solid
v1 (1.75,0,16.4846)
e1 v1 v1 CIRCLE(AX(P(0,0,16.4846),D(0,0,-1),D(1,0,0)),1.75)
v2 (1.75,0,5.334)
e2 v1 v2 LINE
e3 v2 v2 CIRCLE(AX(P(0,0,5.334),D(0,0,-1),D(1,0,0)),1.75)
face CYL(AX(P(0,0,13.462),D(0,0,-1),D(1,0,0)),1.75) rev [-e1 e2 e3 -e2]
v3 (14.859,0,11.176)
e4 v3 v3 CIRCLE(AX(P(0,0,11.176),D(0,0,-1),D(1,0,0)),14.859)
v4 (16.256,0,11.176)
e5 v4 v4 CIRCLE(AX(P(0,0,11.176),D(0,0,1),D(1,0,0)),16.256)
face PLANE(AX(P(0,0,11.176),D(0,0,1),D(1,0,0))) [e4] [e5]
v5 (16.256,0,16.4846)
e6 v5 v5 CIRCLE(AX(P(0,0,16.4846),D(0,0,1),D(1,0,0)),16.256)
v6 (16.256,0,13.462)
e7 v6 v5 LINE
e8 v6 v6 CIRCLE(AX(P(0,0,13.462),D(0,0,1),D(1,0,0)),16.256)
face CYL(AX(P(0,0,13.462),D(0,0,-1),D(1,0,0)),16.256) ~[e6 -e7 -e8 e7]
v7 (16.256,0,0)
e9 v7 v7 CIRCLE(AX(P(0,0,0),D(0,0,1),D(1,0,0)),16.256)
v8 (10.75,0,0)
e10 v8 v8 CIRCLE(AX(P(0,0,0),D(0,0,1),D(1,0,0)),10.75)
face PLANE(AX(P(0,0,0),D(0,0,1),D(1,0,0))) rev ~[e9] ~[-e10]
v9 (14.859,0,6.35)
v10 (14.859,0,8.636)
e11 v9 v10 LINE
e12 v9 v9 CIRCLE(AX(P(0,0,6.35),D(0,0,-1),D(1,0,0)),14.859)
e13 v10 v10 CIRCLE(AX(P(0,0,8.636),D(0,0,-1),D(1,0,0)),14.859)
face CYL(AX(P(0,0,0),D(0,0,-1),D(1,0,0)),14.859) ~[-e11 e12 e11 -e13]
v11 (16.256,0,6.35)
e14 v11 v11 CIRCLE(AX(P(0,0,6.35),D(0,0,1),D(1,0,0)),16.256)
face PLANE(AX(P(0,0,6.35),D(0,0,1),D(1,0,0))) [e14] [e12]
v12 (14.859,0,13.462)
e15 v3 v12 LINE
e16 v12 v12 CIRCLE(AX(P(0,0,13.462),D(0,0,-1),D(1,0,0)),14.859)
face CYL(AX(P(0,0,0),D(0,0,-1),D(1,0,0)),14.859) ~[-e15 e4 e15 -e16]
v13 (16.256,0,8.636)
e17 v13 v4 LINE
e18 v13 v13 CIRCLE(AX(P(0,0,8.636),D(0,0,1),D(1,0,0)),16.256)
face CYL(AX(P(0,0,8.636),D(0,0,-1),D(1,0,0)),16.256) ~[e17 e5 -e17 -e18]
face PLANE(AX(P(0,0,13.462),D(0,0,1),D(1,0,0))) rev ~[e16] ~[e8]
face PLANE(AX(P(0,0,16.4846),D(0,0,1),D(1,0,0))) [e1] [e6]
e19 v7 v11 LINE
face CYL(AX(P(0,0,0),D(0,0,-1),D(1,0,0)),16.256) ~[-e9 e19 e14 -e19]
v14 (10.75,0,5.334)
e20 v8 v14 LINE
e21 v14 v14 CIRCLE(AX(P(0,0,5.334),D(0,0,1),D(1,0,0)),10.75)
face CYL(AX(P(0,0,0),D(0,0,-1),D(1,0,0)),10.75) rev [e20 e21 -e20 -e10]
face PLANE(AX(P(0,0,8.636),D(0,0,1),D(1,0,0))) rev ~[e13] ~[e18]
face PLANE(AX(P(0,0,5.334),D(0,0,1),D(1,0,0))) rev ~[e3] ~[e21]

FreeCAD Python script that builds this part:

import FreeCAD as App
import Part
import Sketcher
from FreeCAD import Vector
Q = App.Units.Quantity

doc = App.newDocument("Part")
body = doc.addObject("PartDesign::Body", "Body")

# Sketch on XY plane
sketch1 = body.newObject("Sketcher::SketchObject", "Sketch")
sketch1.AttachmentSupport = (doc.getObject("XY_Plane"), [""])
sketch1.MapMode = "FlatFace"
sketch1.addGeometry(Part.Circle(Vector(0, 0, 0), Vector(0, 0, 1), 16), False)
sketch1.addConstraint([
    Sketcher.Constraint("Coincident", 0, 3, -1, 1),
    Sketcher.Constraint("Diameter", 0, Q("1.28 in")),
])
pad1 = body.newObject("PartDesign::Pad", "Pad")
pad1.Profile = sketch1
pad1.Length = Q("0.25 in")

# Sketch on XY plane
sketch2 = body.newObject("Sketcher::SketchObject", "Sketch001")
sketch2.AttachmentSupport = (doc.getObject("XY_Plane"), [""])
sketch2.MapMode = "FlatFace"
sketch2.addGeometry(Part.Circle(Vector(0, 0, 0), Vector(0, 0, 1), 15), False)
sketch2.addConstraint([
    Sketcher.Constraint("Coincident", 0, 3, -1, 1),
    Sketcher.Constraint("Diameter", 0, Q("1.17 in")),
])
pad2 = body.newObject("PartDesign::Pad", "Pad001")
pad2.Profile = sketch2
pad2.Length = Q("0.63 in")

# Sketch on XY plane
sketch3 = body.newObject("Sketcher::SketchObject", "Sketch002")
sketch3.AttachmentSupport = (doc.getObject("XY_Plane"), [""])
sketch3.MapMode = "FlatFace"
sketch3.AttachmentOffset = App.Placement(Vector(0, 0, 0.34 * 25.4), App.Rotation())
sketch3.addGeometry(Part.Circle(Vector(0, 0, 0), Vector(0, 0, 1), 16), False)
sketch3.addConstraint([
    Sketcher.Constraint("Coincident", 0, 3, -1, 1),
    Sketcher.Constraint("Diameter", 0, Q("1.28 in")),
])
pad3 = body.newObject("PartDesign::Pad", "Pad002")
pad3.Profile = sketch3
pad3.Length = Q("0.1 in")

# Sketch on XY plane
sketch4 = body.newObject("Sketcher::SketchObject", "Sketch003")
sketch4.AttachmentSupport = (doc.getObject("XY_Plane"), [""])
sketch4.MapMode = "FlatFace"
sketch4.AttachmentOffset = App.Placement(Vector(0, 0, 0.53 * 25.4), App.Rotation())
sketch4.addGeometry(Part.Circle(Vector(0, 0, 0), Vector(0, 0, 1), 16), False)
sketch4.addConstraint([
    Sketcher.Constraint("Coincident", 0, 3, -1, 1),
    Sketcher.Constraint("Diameter", 0, Q("1.28 in")),
])
pad4 = body.newObject("PartDesign::Pad", "Pad003")
pad4.Profile = sketch4
pad4.Length = Q("0.119 in")

# Sketch on XY plane
sketch5 = body.newObject("Sketcher::SketchObject", "Sketch004")
sketch5.AttachmentSupport = (doc.getObject("XY_Plane"), [""])
sketch5.MapMode = "FlatFace"
sketch5.AttachmentOffset = App.Placement(Vector(0, 0, 0.53 * 25.4), App.Rotation())
sketch5.addGeometry(Part.Circle(Vector(0, 0, 0), Vector(0, 0, 1), 1.8), False)
sketch5.addConstraint([
    Sketcher.Constraint("Coincident", 0, 3, -1, 1),
    Sketcher.Constraint("Diameter", 0, 3.5),
])
pocket1 = body.newObject("PartDesign::Pocket", "Pocket")
pocket1.Profile = sketch5
pocket1.Length = Q("1.68 in")
pocket1.Reversed = True

# Sketch on XY plane
sketch6 = body.newObject("Sketcher::SketchObject", "Sketch005")
sketch6.AttachmentSupport = (doc.getObject("XY_Plane"), [""])
sketch6.MapMode = "FlatFace"
sketch6.addGeometry(Part.Circle(Vector(0, 0, 0), Vector(0, 0, 1), 1.8), False)
sketch6.addConstraint([
    Sketcher.Constraint("Coincident", 0, 3, -1, 1),
    Sketcher.Constraint("Diameter", 0, 3.5),
])
pocket2 = body.newObject("PartDesign::Pocket", "Pocket001")
pocket2.Profile = sketch6
pocket2.Length = Q("1.46 in")
pocket2.Reversed = True

# Sketch on XY plane
sketch7 = body.newObject("Sketcher::SketchObject", "Sketch006")
sketch7.AttachmentSupport = (doc.getObject("XY_Plane"), [""])
sketch7.MapMode = "FlatFace"
sketch7.addGeometry(Part.Circle(Vector(0, 0, 0), Vector(0, 0, 1), 11), False)
sketch7.addConstraint([
    Sketcher.Constraint("Coincident", 0, 3, -1, 1),
    Sketcher.Constraint("Diameter", 0, 21.5),
])
pocket3 = body.newObject("PartDesign::Pocket", "Pocket002")
pocket3.Profile = sketch7
pocket3.Length = Q("0.21 in")
pocket3.Reversed = True

doc.recompute()
